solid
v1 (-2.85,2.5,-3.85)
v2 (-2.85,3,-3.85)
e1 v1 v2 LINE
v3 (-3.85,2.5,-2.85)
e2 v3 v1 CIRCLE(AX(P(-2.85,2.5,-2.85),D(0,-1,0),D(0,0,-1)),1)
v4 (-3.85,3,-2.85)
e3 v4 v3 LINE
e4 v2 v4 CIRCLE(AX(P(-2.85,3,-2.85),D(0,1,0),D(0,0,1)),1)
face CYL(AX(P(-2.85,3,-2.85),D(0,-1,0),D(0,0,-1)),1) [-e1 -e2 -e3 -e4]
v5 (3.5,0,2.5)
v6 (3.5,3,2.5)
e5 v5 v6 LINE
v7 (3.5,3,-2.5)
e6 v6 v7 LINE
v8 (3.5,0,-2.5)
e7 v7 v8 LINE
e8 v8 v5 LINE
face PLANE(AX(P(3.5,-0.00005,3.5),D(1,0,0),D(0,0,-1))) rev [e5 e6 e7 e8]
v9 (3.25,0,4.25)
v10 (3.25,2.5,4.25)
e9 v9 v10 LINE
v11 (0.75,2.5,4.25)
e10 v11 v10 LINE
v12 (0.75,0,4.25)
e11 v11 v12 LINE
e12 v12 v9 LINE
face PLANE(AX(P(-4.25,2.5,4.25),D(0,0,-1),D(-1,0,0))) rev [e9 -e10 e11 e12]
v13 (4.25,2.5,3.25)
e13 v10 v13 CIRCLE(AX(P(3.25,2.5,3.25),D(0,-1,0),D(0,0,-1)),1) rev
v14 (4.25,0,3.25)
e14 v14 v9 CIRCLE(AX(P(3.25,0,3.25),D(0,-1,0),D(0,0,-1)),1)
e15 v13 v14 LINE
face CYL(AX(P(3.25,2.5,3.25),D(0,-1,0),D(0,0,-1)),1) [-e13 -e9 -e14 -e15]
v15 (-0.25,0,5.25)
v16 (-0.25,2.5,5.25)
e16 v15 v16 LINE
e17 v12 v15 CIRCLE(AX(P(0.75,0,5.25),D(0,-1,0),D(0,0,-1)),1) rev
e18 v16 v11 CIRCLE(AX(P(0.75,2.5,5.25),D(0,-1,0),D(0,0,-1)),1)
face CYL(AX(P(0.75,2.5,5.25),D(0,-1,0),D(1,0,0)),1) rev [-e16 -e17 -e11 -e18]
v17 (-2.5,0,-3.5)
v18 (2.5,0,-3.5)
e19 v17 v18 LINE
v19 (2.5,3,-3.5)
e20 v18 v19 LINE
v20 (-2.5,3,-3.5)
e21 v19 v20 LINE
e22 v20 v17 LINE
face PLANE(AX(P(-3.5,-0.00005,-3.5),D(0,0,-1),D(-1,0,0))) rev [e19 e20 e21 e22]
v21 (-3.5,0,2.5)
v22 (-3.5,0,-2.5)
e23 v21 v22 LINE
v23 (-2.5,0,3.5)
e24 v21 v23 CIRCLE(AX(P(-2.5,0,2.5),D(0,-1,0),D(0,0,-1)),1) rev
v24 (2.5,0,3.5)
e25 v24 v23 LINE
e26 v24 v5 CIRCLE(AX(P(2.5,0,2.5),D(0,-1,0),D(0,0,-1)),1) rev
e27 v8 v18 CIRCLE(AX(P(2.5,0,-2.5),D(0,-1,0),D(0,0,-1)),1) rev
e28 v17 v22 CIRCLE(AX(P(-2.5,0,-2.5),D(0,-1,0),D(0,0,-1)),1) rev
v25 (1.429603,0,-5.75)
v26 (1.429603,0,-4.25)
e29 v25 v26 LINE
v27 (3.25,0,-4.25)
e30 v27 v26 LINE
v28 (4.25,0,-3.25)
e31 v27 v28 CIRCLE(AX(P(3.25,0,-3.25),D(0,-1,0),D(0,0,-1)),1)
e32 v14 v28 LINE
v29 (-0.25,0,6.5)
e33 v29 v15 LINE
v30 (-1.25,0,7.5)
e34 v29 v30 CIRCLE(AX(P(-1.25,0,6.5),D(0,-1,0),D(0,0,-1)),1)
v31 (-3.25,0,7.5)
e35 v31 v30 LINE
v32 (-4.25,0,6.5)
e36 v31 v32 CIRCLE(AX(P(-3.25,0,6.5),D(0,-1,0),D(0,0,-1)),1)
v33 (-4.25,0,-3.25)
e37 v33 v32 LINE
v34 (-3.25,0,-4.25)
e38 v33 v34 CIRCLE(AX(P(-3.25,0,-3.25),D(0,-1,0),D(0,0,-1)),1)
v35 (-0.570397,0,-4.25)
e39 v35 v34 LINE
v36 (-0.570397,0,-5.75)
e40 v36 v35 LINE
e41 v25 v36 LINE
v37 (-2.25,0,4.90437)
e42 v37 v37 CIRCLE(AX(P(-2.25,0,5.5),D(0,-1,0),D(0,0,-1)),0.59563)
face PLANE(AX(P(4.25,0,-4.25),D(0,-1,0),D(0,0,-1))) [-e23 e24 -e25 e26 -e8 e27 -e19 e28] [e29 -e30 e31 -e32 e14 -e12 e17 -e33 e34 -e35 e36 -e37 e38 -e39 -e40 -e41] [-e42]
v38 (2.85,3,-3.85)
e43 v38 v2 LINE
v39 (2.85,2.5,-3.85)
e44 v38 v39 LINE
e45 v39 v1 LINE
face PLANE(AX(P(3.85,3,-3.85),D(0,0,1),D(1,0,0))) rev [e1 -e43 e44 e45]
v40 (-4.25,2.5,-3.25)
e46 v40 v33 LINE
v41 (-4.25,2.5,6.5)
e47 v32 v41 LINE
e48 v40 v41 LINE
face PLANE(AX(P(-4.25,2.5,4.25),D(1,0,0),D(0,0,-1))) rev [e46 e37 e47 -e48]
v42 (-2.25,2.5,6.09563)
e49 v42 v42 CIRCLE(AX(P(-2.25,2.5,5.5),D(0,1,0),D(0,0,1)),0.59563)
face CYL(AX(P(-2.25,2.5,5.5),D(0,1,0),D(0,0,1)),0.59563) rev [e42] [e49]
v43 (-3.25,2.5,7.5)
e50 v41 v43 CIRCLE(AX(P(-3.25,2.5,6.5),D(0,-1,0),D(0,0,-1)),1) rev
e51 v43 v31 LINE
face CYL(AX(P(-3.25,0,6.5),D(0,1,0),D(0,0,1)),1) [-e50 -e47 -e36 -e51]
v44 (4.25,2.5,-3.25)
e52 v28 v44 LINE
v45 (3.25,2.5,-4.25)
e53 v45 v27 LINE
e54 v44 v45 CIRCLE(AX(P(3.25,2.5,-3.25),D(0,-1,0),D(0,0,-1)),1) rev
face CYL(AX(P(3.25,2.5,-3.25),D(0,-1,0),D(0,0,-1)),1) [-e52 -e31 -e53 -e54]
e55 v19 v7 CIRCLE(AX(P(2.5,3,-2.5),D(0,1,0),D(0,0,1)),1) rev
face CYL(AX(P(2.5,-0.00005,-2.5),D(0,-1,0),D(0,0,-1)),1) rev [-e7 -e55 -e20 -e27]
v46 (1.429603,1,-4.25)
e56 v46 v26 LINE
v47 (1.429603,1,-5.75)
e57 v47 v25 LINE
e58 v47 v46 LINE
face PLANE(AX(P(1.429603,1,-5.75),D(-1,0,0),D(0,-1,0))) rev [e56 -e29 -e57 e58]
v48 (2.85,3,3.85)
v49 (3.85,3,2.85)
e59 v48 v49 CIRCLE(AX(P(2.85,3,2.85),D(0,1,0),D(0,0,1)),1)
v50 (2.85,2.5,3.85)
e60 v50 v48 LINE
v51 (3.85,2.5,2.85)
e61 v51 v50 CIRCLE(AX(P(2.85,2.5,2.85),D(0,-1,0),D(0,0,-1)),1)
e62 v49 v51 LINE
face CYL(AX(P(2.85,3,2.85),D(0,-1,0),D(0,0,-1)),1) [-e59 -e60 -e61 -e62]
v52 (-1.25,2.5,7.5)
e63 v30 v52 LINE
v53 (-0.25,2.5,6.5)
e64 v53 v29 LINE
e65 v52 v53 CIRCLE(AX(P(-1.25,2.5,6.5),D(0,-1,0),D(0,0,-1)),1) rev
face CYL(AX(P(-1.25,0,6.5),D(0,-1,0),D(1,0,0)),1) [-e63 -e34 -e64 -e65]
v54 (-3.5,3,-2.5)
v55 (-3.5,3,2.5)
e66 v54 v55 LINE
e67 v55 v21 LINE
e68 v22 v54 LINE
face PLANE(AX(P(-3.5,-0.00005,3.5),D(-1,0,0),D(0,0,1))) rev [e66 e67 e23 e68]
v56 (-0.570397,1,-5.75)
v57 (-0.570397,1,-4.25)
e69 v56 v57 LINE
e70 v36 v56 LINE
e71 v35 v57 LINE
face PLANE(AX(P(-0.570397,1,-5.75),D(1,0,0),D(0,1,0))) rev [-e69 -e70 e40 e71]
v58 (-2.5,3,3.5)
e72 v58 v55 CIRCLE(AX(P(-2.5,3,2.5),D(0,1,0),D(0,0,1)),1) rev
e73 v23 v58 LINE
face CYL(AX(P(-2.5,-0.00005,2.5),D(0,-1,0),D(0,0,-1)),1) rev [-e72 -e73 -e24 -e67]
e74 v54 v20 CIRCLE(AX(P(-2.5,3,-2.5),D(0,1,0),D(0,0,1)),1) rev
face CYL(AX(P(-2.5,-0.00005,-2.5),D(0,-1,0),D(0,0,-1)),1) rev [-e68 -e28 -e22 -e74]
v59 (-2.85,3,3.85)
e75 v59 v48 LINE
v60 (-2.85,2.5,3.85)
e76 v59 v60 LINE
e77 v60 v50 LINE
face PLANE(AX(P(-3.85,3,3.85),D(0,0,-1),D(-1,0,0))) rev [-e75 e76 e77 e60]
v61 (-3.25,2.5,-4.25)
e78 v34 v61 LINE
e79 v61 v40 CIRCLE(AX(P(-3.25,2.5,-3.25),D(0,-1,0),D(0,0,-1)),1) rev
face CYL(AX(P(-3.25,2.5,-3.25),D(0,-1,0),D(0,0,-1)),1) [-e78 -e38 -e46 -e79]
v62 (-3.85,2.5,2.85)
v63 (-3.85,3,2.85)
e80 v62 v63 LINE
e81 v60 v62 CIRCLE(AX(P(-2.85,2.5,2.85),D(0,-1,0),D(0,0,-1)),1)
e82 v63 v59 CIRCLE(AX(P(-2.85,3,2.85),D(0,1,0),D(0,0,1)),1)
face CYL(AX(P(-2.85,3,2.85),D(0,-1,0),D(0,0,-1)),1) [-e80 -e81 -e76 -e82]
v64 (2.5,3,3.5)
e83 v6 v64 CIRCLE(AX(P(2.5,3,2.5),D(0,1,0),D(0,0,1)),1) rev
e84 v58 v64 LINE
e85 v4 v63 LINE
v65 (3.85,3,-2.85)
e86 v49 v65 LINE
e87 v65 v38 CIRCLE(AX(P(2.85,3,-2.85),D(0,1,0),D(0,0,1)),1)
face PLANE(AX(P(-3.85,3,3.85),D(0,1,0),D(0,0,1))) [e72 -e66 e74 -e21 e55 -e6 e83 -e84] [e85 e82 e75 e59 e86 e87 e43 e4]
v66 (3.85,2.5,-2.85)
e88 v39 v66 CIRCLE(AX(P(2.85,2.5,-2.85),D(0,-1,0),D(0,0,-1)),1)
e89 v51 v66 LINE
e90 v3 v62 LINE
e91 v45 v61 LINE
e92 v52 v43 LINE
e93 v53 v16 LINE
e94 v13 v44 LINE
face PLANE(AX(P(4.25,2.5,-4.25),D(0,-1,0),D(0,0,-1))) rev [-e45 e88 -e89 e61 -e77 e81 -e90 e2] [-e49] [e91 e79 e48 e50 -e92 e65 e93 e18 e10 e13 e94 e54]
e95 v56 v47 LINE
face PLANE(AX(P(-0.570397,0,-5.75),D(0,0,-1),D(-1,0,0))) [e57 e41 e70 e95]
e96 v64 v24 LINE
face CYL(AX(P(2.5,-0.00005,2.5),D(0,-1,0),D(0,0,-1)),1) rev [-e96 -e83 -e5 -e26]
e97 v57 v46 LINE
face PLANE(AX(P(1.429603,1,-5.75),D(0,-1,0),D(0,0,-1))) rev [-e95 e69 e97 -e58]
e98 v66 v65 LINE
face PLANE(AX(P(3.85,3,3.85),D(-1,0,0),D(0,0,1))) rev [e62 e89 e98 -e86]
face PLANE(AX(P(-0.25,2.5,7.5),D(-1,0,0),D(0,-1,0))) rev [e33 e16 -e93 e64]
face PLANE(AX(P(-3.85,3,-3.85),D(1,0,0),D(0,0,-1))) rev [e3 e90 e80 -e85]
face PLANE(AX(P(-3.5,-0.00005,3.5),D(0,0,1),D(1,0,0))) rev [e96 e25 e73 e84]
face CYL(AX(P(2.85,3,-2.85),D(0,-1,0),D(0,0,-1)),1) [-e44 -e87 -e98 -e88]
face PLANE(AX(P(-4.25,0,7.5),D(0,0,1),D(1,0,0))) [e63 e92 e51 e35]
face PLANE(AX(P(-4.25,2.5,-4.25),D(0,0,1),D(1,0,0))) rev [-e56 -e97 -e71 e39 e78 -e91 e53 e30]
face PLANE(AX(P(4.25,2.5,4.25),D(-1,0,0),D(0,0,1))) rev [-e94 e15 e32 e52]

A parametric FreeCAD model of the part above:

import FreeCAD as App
import Part
import Sketcher
from FreeCAD import Vector
Q = App.Units.Quantity


def edges_at(feature, points):
    """Names of the edges that pass closest to the given points."""
    edges = feature.Shape.Edges
    near = lambda p: min(range(len(edges)), key=lambda i: edges[i].distToShape(Part.Vertex(*p))[0])
    return sorted({f"Edge{near(p) + 1}" for p in points})


def add_polygon(sketch, points):
    """Adds a closed chain of lines whose ends are joined by coincident constraints."""
    first, n = sketch.GeometryCount, len(points)
    for a, b in zip(points, points[1:] + points[:1]):
        sketch.addGeometry(Part.LineSegment(App.Vector(*a, 0), App.Vector(*b, 0)), False)
    for i in range(n):
        sketch.addConstraint(Sketcher.Constraint("Coincident", first + i, 2, first + (i + 1) % n, 1))

doc = App.newDocument("Part")
params = doc.addObject("Spreadsheet::Sheet", "Params")
for row, (alias, value) in enumerate([
    ("sketch1_width", "8.5 mm"),
    ("pad1_length", "2.5 mm"),
    ("sketch2_width", "7.7 mm"),
    ("pad2_length", "0.5 mm"),
    ("sketch3_width", "4 mm"),
    ("sketch3_height", "2.5 mm"),
    ("pad3_length", "3.25 mm"),
    ("sketch4_width", "7 mm"),
    ("hole_diameter", "1.19126 mm"),
    ("sketch6_width", "2 mm"),
    ("sketch6_height", "1 mm"),
    ("pad4_length", "1.5 mm"),
    ("fillet_radius", "1 mm"),
], start=1):
    params.set(f"A{row}", alias)
    params.set(f"B{row}", "=" + value)
    params.setAlias(f"B{row}", alias)

body = doc.addObject("PartDesign::Body", "Body")

# Sketch on XZ plane
sketch1 = doc.addObject("Sketcher::SketchObject", "Sketch")
body.addObject(sketch1)
sketch1.AttachmentSupport = (doc.XZ_Plane, [""])
sketch1.MapMode = "FlatFace"
add_polygon(sketch1, [(-4, -4), (-4, 4), (4, 4), (4, -4)])  # lines 0-3
sketch1.addConstraint([
    Sketcher.Constraint("Vertical", 0),
    Sketcher.Constraint("Horizontal", 1),
    Sketcher.Constraint("Vertical", 2),
    Sketcher.Constraint("Horizontal", 3),
    Sketcher.Constraint("Symmetric", 0, 2, 2, 2, -1, 1),
    Sketcher.Constraint("Equal", 3, 0),
    Sketcher.Constraint("DistanceX", 1, 1, 1, 2, Q("8.5 mm")),
])
sketch1.setExpression("Constraints[10]", "Params.sketch1_width")
pad1 = doc.addObject("PartDesign::Pad", "Pad")
body.addObject(pad1)
pad1.Profile = sketch1
pad1.setExpression("Length", "Params.pad1_length")
pad1.Reversed = True

# Sketch on XZ plane
sketch2 = doc.addObject("Sketcher::SketchObject", "Sketch001")
body.addObject(sketch2)
sketch2.AttachmentSupport = (doc.XZ_Plane, [""])
sketch2.MapMode = "FlatFace"
sketch2.AttachmentOffset = App.Placement(Vector(0, 0, -2.5), App.Rotation())
add_polygon(sketch2, [(-4, -4), (-4, 4), (4, 4), (4, -4)])  # lines 0-3
sketch2.addConstraint([
    Sketcher.Constraint("Vertical", 0),
    Sketcher.Constraint("Horizontal", 1),
    Sketcher.Constraint("Vertical", 2),
    Sketcher.Constraint("Horizontal", 3),
    Sketcher.Constraint("Symmetric", 0, 2, 2, 2, -1, 1),
    Sketcher.Constraint("Equal", 3, 0),
    Sketcher.Constraint("DistanceX", 1, 1, 1, 2, Q("7.7 mm")),
])
sketch2.setExpression("Constraints[10]", "Params.sketch2_width")
pad2 = doc.addObject("PartDesign::Pad", "Pad001")
body.addObject(pad2)
pad2.Profile = sketch2
pad2.setExpression("Length", "Params.pad2_length")
pad2.Reversed = True

# Sketch on XY plane
sketch3 = doc.addObject("Sketcher::SketchObject", "Sketch002")
body.addObject(sketch3)
sketch3.AttachmentSupport = (doc.XY_Plane, [""])
sketch3.MapMode = "FlatFace"
sketch3.AttachmentOffset = App.Placement(Vector(0, 0, 4.25), App.Rotation())
add_polygon(sketch3, [(-4.2, 2.5), (-4.2, 0), (-0.2, 0), (-0.2, 2.5)])  # lines 0-3
sketch3.addConstraint([
    Sketcher.Constraint("Vertical", 0),
    Sketcher.Constraint("Horizontal", 1),
    Sketcher.Constraint("Vertical", 2),
    Sketcher.Constraint("Horizontal", 3),
    Sketcher.Constraint("PointOnObject", 0, 2, -1),
    Sketcher.Constraint("DistanceX", 1, 1, 1, 2, Q("4 mm")),
    Sketcher.Constraint("DistanceY", 0, 2, 0, 1, Q("2.5 mm")),
    Sketcher.Constraint("DistanceX", 0, 2, -1, 1, Q("4.25 mm")),
])
sketch3.setExpression("Constraints[9]", "Params.sketch3_width")
sketch3.setExpression("Constraints[10]", "Params.sketch3_height")
pad3 = doc.addObject("PartDesign::Pad", "Pad002")
body.addObject(pad3)
pad3.Profile = sketch3
pad3.setExpression("Length", "Params.pad3_length")

# Sketch on XZ plane
sketch4 = doc.addObject("Sketcher::SketchObject", "Sketch003")
body.addObject(sketch4)
sketch4.AttachmentSupport = (doc.XZ_Plane, [""])
sketch4.MapMode = "FlatFace"
sketch4.AttachmentOffset = App.Placement(Vector(0, 0, -2.5), App.Rotation())
add_polygon(sketch4, [(-4, -4), (-4, 4), (4, 4), (4, -4)])  # lines 0-3
sketch4.addConstraint([
    Sketcher.Constraint("Vertical", 0),
    Sketcher.Constraint("Horizontal", 1),
    Sketcher.Constraint("Vertical", 2),
    Sketcher.Constraint("Horizontal", 3),
    Sketcher.Constraint("Symmetric", 0, 2, 2, 2, -1, 1),
    Sketcher.Constraint("Equal", 3, 0),
    Sketcher.Constraint("DistanceX", 1, 1, 1, 2, Q("7 mm")),
])
sketch4.setExpression("Constraints[10]", "Params.sketch4_width")
pocket1 = doc.addObject("PartDesign::Pocket", "Pocket")
body.addObject(pocket1)
pocket1.Profile = sketch4
pocket1.Type = "ThroughAll"
pocket1.Midplane = True

# Sketch on XZ plane
sketch5 = doc.addObject("Sketcher::SketchObject", "Sketch004")
body.addObject(sketch5)
sketch5.AttachmentSupport = (doc.XZ_Plane, [""])
sketch5.MapMode = "FlatFace"
sketch5.AttachmentOffset = App.Placement(Vector(0, 0, -2.5), App.Rotation())
sketch5.addGeometry(Part.Circle(Vector(-2.2, 5.5, 0), Vector(0, 0, 1), 0.6), False)
sketch5.addConstraint([
    Sketcher.Constraint("DistanceY", -1, 1, 0, 3, Q("5.5 mm")),
    Sketcher.Constraint("Diameter", 0, Q("1.19126 mm")),
    Sketcher.Constraint("DistanceX", 0, 3, -1, 1, Q("2.25 mm")),
])
doc.recompute()
hole = doc.addObject("PartDesign::Hole", "Hole")
body.addObject(hole)
hole.Profile = sketch5
hole.ThreadType = "None"
hole.setExpression("Diameter", "Params.hole_diameter")
hole.DepthType = "ThroughAll"
hole.Reversed = True

# Sketch on XY plane
sketch6 = doc.addObject("Sketcher::SketchObject", "Sketch005")
body.addObject(sketch6)
sketch6.AttachmentSupport = (doc.XY_Plane, [""])
sketch6.MapMode = "FlatFace"
sketch6.AttachmentOffset = App.Placement(Vector(0, 0, -4.25), App.Rotation())
add_polygon(sketch6, [(1.4, 1), (1.4, 0), (-0.6, 0), (-0.6, 1)])  # lines 0-3
sketch6.addConstraint([
    Sketcher.Constraint("Vertical", 0),
    Sketcher.Constraint("Horizontal", 1),
    Sketcher.Constraint("Vertical", 2),
    Sketcher.Constraint("Horizontal", 3),
    Sketcher.Constraint("PointOnObject", 0, 2, -1),
    Sketcher.Constraint("DistanceX", 1, 2, 1, 1, Q("2 mm")),
    Sketcher.Constraint("DistanceY", 0, 2, 0, 1, Q("1 mm")),
    Sketcher.Constraint("DistanceX", -1, 1, 0, 2, Q("1.429603 mm")),
])
sketch6.setExpression("Constraints[9]", "Params.sketch6_width")
sketch6.setExpression("Constraints[10]", "Params.sketch6_height")
pad4 = doc.addObject("PartDesign::Pad", "Pad003")
body.addObject(pad4)
pad4.Profile = sketch6
pad4.setExpression("Length", "Params.pad4_length")
pad4.Reversed = True
doc.recompute()

fillet = doc.addObject("PartDesign::Fillet", "Fillet")
body.addObject(fillet)
fillet.Base = (pad4, edges_at(pad4, [
    (3.5, 1.5, -3.5),
    (-3.5, 1.5, -3.5),
    (-3.5, 1.5, 3.5),
    (3.5, 1.5, 3.5),
    (-4.25, 1.25, 7.5),
    (-0.25, 1.25, 7.5),
    (-0.25, 1.25, 4.25),
    (4.25, 1.25, 4.25),
    (4.25, 1.25, -4.25),
    (-4.25, 1.25, -4.25),
    (-3.85, 2.75, 3.85),
    (-3.85, 2.75, -3.85),
    (3.85, 2.75, -3.85),
    (3.85, 2.75, 3.85),
]))
fillet.setExpression("Radius", "Params.fillet_radius")

doc.recompute()
